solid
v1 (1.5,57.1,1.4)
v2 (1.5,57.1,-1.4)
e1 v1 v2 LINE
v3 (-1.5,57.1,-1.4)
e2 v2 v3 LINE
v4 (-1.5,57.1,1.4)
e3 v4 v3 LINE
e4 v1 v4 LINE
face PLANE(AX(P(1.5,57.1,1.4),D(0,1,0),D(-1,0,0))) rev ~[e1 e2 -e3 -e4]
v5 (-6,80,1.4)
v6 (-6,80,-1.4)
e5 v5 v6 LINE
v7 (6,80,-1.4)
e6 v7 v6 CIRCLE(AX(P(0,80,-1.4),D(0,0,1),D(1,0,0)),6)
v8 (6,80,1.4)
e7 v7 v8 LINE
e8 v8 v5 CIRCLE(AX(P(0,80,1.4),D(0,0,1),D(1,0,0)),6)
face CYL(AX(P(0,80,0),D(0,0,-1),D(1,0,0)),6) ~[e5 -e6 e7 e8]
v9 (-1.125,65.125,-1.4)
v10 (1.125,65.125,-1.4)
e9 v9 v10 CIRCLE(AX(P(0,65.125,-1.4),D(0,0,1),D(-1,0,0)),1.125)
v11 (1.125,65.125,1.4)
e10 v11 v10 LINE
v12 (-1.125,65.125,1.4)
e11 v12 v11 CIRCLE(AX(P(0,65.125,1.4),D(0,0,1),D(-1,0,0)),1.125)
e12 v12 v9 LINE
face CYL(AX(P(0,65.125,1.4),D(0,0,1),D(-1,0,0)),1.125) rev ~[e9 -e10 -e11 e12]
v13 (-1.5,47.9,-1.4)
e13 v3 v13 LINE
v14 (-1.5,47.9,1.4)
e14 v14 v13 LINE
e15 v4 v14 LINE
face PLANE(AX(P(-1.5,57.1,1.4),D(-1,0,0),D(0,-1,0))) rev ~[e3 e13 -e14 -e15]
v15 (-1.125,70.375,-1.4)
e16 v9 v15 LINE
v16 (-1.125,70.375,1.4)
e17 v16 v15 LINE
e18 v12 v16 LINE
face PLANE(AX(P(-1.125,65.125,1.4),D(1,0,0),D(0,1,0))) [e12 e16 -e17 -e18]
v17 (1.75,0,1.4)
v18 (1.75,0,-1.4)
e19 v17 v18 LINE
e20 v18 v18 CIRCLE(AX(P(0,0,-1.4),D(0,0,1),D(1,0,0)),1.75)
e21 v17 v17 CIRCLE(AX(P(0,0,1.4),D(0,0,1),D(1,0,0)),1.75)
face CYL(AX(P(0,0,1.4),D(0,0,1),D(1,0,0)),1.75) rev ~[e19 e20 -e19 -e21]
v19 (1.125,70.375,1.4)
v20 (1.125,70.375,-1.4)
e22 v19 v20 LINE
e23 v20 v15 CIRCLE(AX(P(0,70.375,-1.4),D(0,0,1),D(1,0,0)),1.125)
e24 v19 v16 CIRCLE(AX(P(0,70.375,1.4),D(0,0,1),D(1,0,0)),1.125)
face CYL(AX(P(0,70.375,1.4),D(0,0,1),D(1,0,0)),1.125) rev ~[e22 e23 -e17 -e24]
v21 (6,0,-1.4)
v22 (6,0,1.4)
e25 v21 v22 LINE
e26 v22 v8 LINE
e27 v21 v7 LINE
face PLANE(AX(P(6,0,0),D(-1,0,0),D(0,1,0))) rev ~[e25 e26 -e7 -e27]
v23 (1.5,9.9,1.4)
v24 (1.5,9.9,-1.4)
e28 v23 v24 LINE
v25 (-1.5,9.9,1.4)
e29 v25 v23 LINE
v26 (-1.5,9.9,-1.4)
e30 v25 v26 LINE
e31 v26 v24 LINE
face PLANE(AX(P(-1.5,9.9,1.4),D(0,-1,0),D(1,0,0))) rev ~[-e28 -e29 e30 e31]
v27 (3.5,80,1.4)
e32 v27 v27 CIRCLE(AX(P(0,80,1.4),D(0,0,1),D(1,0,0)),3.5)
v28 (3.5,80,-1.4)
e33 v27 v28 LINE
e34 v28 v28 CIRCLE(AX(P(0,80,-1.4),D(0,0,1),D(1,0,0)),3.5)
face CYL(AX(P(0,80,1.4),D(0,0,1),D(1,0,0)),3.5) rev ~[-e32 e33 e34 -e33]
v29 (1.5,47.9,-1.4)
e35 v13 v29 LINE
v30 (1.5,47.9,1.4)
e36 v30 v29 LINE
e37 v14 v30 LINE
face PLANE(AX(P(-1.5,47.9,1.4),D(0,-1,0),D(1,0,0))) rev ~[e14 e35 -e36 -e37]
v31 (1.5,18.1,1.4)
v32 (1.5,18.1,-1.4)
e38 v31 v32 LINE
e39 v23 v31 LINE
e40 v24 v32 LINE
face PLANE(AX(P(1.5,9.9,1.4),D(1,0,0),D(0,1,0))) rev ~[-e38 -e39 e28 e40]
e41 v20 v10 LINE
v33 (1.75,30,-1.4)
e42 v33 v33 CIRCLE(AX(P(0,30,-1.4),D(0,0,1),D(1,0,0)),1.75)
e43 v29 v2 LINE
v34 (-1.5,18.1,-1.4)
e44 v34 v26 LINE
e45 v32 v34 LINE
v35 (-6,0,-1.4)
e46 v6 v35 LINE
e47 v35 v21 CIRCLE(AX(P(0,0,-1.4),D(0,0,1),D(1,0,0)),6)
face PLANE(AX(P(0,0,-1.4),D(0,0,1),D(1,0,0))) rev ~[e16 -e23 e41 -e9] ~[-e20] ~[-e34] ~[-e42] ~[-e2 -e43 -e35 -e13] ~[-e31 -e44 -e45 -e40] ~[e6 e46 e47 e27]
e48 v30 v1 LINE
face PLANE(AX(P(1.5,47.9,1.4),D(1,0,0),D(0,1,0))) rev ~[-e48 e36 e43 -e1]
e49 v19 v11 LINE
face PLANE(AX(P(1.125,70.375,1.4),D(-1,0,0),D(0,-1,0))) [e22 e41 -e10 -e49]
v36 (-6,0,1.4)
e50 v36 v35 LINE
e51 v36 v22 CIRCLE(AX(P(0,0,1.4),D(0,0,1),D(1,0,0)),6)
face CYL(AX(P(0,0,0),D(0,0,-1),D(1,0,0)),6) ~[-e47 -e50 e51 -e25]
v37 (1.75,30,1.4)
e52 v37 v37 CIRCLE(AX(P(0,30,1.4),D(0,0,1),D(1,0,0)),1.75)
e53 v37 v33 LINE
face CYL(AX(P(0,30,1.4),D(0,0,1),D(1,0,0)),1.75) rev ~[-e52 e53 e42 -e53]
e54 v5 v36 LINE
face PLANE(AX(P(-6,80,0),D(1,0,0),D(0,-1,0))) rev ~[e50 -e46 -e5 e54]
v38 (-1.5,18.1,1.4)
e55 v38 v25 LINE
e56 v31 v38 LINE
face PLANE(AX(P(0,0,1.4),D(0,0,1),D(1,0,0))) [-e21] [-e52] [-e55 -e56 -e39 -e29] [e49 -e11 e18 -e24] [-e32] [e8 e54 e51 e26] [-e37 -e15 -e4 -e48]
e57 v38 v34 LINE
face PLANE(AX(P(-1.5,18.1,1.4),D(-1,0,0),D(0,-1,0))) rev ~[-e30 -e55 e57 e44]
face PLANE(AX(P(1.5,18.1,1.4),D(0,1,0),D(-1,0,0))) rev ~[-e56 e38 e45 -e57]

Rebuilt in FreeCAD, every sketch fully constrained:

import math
import FreeCAD as App
import Part
import Sketcher

V = App.Vector
Q = App.Units.Quantity


def add_polygon(sketch, points):
    """Adds a closed chain of lines whose ends are joined by coincident constraints."""
    first, n = sketch.GeometryCount, len(points)
    for a, b in zip(points, points[1:] + points[:1]):
        sketch.addGeometry(Part.LineSegment(App.Vector(*a, 0), App.Vector(*b, 0)), False)
    for i in range(n):
        sketch.addConstraint(Sketcher.Constraint("Coincident", first + i, 2, first + (i + 1) % n, 1))

doc = App.newDocument("Part")
body = doc.addObject("PartDesign::Body", "Body")

# Sketch on XY plane
sketch1 = doc.addObject("Sketcher::SketchObject", "Sketch")
body.addObject(sketch1)
sketch1.AttachmentSupport = (doc.XY_Plane, [""])
sketch1.MapMode = "FlatFace"
sketch1.addGeometry([
    Part.ArcOfCircle(Part.Circle(V(0, 0, 0), V(0, 0, 1), 6), math.radians(180), math.radians(360)),
    Part.LineSegment(V(6, 0, 0), V(6, 80, 0)),
    Part.ArcOfCircle(Part.Circle(V(0, 80, 0), V(0, 0, 1), 6), math.radians(0), math.radians(180)),
    Part.LineSegment(V(-6, 80, 0), V(-6, 0, 0)),
], False)
sketch1.addConstraint([
    Sketcher.Constraint("Tangent", 0, 2, 1, 1),
    Sketcher.Constraint("Tangent", 1, 2, 2, 1),
    Sketcher.Constraint("Tangent", 2, 2, 3, 1),
    Sketcher.Constraint("Tangent", 3, 2, 0, 1),
    Sketcher.Constraint("Vertical", 1),
    Sketcher.Constraint("Vertical", 3),
    Sketcher.Constraint("Coincident", 0, 3, -1, 1),
    Sketcher.Constraint("Radius", 0, Q("6 mm")),
    Sketcher.Constraint("DistanceY", 1, 1, 1, 2, Q("80 mm")),
])
pad1 = doc.addObject("PartDesign::Pad", "Pad")
body.addObject(pad1)
pad1.Profile = sketch1
pad1.Length = 2.8
pad1.Midplane = True

# Sketch on XY plane
sketch2 = doc.addObject("Sketcher::SketchObject", "Sketch001")
body.addObject(sketch2)
sketch2.AttachmentSupport = (doc.XY_Plane, [""])
sketch2.MapMode = "FlatFace"
sketch2.AttachmentOffset = App.Placement(V(0, 0, 1.4), App.Rotation())
sketch2.addGeometry(Part.Circle(V(0, 0, 0), V(0, 0, 1), 1.8), False)  # 0
sketch2.addGeometry(Part.Circle(V(0, 80, 0), V(0, 0, 1), 3.5), False)  # 1
add_polygon(sketch2, [(-1.5, 57.1), (-1.5, 47.9), (1.5, 47.9), (1.5, 57.1)])  # lines 2-5
sketch2.addGeometry(Part.Circle(V(0, 30, 0), V(0, 0, 1), 1.8), False)  # 6
add_polygon(sketch2, [(-1.5, 18.1), (-1.5, 9.9), (1.5, 9.9), (1.5, 18.1)])  # lines 7-10
sketch2.addGeometry(Part.LineSegment(V(-1.1, 70.4, 0), V(-1.1, 65.1, 0)), False)  # 11
sketch2.addGeometry(Part.ArcOfCircle(Part.Circle(V(0, 65.1, 0), V(0, 0, 1), 1.1), math.radians(180), math.radians(360)), False)  # 12
sketch2.addGeometry(Part.LineSegment(V(1.1, 65.1, 0), V(1.1, 70.4, 0)), False)  # 13
sketch2.addGeometry(Part.ArcOfCircle(Part.Circle(V(0, 70.4, 0), V(0, 0, 1), 1.1), math.radians(0), math.radians(180)), False)  # 14
sketch2.addConstraint([
    Sketcher.Constraint("Tangent", 11, 2, 12, 1),
    Sketcher.Constraint("Tangent", 12, 2, 13, 1),
    Sketcher.Constraint("Tangent", 13, 2, 14, 1),
    Sketcher.Constraint("Tangent", 14, 2, 11, 1),
    Sketcher.Constraint("Vertical", 2),
    Sketcher.Constraint("Horizontal", 3),
    Sketcher.Constraint("Vertical", 4),
    Sketcher.Constraint("Horizontal", 5),
    Sketcher.Constraint("Vertical", 7),
    Sketcher.Constraint("Horizontal", 8),
    Sketcher.Constraint("Vertical", 9),
    Sketcher.Constraint("Horizontal", 10),
    Sketcher.Constraint("Vertical", 11),
    Sketcher.Constraint("Vertical", 13),
    Sketcher.Constraint("Coincident", 0, 3, -1, 1),
    Sketcher.Constraint("Equal", 0, 6),
    Sketcher.Constraint("PointOnObject", 1, 3, -2),
    Sketcher.Constraint("PointOnObject", 6, 3, -2),
    Sketcher.Constraint("PointOnObject", 12, 3, -2),
    Sketcher.Constraint("Vertical", 5, 2, 7, 2),
    Sketcher.Constraint("Vertical", 4, 2, 8, 2),
    Sketcher.Constraint("Diameter", 1, Q("7 mm")),
    Sketcher.Constraint("Diameter", 0, Q("3.5 mm")),
    Sketcher.Constraint("DistanceX", 3, 1, 3, 2, Q("3 mm")),
    Sketcher.Constraint("DistanceY", 2, 2, 2, 1, Q("9.2 mm")),
    Sketcher.Constraint("DistanceY", 7, 2, 7, 1, Q("8.2 mm")),
    Sketcher.Constraint("DistanceY", -1, 1, 6, 3, Q("30 mm")),
    Sketcher.Constraint("Radius", 12, Q("1.125 mm")),
    Sketcher.Constraint("DistanceY", -1, 1, 1, 3, Q("80 mm")),
    Sketcher.Constraint("DistanceY", 7, 2, 2, 2, Q("38 mm")),
    Sketcher.Constraint("DistanceY", 11, 2, 11, 1, Q("5.25 mm")),
    Sketcher.Constraint("DistanceX", 2, 2, -1, 1, Q("1.5 mm")),
    Sketcher.Constraint("DistanceY", -1, 1, 2, 2, Q("47.9 mm")),
    Sketcher.Constraint("DistanceY", -1, 1, 12, 3, Q("65.125 mm")),
])
pocket1 = doc.addObject("PartDesign::Pocket", "Pocket")
body.addObject(pocket1)
pocket1.Profile = sketch2
pocket1.Type = "ThroughAll"

doc.recompute()
